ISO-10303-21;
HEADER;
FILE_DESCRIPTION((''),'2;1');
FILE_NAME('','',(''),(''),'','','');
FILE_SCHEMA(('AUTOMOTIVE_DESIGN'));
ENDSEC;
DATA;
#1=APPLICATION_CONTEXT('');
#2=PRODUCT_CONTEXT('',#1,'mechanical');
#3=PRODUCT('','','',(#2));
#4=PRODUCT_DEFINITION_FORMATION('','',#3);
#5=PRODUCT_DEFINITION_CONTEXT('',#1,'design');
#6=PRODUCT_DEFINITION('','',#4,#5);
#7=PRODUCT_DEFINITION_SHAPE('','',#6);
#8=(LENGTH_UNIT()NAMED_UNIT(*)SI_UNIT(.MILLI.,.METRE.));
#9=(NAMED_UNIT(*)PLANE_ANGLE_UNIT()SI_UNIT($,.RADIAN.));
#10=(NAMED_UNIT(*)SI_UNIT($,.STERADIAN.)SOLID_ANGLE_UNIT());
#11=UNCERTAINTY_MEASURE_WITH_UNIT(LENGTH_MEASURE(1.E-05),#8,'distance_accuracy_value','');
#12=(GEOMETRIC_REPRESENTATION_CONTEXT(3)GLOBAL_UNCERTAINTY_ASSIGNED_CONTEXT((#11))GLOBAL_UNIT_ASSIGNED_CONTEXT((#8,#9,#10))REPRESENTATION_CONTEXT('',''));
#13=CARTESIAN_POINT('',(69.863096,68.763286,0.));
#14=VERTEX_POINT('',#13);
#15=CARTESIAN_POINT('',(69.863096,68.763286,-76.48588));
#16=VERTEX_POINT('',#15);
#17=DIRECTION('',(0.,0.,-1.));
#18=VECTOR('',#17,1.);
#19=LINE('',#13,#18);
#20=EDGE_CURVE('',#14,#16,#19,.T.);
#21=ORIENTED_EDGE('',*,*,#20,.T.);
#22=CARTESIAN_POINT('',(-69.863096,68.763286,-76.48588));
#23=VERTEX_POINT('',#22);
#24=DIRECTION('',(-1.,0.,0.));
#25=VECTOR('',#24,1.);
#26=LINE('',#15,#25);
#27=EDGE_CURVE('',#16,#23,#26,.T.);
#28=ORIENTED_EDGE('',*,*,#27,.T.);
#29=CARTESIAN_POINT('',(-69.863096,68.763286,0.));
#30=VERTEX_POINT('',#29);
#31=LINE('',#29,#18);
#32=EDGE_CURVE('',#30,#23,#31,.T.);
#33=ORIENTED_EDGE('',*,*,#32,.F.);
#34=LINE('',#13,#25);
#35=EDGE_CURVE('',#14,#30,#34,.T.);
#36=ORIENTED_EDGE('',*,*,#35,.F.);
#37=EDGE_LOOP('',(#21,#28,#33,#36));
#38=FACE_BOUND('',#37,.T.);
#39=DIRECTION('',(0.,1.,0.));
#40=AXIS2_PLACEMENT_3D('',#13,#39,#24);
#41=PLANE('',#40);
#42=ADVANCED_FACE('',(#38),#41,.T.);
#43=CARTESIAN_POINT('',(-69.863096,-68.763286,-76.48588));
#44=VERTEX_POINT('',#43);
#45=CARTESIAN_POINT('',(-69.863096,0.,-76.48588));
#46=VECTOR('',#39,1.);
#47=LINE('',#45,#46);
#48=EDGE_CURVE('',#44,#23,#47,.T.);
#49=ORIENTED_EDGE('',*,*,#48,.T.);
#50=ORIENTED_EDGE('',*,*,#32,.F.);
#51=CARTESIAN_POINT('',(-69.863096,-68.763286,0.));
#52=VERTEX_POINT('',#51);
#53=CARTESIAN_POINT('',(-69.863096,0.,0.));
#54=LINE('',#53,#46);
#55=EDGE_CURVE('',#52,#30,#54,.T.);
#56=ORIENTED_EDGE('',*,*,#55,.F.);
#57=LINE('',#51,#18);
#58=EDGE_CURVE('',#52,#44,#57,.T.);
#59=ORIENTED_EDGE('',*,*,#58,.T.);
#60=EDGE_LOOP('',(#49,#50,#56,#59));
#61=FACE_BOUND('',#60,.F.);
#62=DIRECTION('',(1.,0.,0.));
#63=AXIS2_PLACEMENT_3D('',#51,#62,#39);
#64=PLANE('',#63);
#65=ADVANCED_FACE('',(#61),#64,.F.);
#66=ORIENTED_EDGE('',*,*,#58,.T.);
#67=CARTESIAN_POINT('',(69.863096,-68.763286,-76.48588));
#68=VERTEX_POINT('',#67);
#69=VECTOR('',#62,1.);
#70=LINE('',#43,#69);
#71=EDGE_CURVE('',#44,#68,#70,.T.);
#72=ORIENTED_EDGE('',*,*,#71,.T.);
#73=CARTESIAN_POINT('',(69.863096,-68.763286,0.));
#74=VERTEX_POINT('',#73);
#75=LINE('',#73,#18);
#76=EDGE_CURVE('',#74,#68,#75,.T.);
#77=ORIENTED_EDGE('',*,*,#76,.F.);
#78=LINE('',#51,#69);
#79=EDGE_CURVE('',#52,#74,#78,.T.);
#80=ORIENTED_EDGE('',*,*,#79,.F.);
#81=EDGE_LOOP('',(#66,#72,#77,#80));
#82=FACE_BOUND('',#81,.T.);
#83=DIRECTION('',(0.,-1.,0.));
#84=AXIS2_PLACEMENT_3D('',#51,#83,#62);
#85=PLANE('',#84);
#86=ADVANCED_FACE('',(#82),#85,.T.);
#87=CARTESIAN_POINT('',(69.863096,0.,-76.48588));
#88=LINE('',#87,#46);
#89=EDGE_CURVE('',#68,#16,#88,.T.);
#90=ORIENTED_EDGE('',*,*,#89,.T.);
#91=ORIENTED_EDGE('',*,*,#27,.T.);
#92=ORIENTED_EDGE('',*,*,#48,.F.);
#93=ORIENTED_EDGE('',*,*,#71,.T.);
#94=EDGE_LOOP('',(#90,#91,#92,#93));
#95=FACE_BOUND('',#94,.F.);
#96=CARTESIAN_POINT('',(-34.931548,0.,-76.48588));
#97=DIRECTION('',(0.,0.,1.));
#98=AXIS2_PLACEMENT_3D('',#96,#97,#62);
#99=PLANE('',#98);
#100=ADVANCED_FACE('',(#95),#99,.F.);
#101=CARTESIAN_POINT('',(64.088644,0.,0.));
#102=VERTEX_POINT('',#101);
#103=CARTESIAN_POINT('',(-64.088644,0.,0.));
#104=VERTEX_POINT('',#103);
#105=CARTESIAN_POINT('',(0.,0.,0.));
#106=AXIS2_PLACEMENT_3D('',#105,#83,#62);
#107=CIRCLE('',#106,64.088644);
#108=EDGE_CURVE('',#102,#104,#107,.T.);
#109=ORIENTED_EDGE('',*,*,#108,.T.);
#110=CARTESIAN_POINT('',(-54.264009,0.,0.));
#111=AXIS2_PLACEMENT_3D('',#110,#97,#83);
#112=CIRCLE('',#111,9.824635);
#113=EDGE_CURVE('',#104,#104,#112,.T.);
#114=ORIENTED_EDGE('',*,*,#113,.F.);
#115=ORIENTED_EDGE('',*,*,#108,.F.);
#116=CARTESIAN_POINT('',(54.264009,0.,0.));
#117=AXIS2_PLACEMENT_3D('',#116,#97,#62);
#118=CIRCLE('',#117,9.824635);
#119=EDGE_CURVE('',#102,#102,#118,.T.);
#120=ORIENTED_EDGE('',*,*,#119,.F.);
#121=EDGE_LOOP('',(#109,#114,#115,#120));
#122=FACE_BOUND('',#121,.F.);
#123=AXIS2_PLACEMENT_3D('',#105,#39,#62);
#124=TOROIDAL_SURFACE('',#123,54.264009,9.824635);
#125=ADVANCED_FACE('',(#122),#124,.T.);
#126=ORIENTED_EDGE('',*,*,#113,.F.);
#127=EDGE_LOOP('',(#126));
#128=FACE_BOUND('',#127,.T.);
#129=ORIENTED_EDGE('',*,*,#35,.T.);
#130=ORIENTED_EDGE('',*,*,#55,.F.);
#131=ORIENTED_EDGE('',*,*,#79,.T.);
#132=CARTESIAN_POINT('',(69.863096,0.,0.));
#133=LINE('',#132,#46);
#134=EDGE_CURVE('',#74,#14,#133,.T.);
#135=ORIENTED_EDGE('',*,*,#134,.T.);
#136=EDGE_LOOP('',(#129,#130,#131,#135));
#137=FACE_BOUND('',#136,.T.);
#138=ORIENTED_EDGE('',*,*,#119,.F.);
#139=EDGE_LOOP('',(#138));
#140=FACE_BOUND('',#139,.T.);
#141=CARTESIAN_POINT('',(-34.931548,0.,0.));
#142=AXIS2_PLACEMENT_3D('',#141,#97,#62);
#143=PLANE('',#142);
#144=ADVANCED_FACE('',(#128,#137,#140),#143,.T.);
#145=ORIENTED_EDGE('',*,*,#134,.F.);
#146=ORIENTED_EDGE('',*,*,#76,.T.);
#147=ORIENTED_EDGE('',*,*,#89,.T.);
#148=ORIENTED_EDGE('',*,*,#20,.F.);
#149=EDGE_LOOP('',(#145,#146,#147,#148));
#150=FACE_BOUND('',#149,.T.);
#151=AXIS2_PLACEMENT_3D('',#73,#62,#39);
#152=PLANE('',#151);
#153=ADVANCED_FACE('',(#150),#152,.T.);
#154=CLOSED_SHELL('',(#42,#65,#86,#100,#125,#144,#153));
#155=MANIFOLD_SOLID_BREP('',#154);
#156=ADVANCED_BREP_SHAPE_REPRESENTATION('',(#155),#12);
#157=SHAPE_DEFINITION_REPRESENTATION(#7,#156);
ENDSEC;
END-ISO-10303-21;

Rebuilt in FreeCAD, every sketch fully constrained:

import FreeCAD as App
import Part
import Sketcher

V = App.Vector
Q = App.Units.Quantity


def add_polygon(sketch, points):
    """Adds a closed chain of lines whose ends are joined by coincident constraints."""
    first, n = sketch.GeometryCount, len(points)
    for a, b in zip(points, points[1:] + points[:1]):
        sketch.addGeometry(Part.LineSegment(App.Vector(*a, 0), App.Vector(*b, 0)), False)
    for i in range(n):
        sketch.addConstraint(Sketcher.Constraint("Coincident", first + i, 2, first + (i + 1) % n, 1))

doc = App.newDocument("Part")
params = doc.addObject("Spreadsheet::Sheet", "Params")
for row, (alias, value) in enumerate([
    ("revolution_angle", "180.824996 deg"),
    ("pad1_length", "76.48588 mm"),
], start=1):
    params.set(f"A{row}", alias)
    params.set(f"B{row}", "=" + value)
    params.setAlias(f"B{row}", alias)

body = doc.addObject("PartDesign::Body", "Body")

# Sketch on XY plane
sketch1 = body.newObject("Sketcher::SketchObject", "Sketch")
sketch1.AttachmentSupport = (doc.getObject("XY_Plane"), [""])
sketch1.MapMode = "FlatFace"
sketch1.addGeometry(Part.Circle(V(54, 0, 0), V(0, 0, 1), 10), False)
sketch1.addConstraint([
    Sketcher.Constraint("PointOnObject", 0, 3, -1),
    Sketcher.Constraint("Diameter", 0, Q("19.64927 mm")),
    Sketcher.Constraint("DistanceX", -1, 1, 0, 3, Q("54.264009 mm")),
])
revolution = body.newObject("PartDesign::Revolution", "Revolution")
revolution.Profile = sketch1
revolution.ReferenceAxis = (sketch1, ["V_Axis"])
revolution.setExpression("Angle", "Params.revolution_angle")
revolution.Reversed = True

# Sketch on XY plane
sketch2 = body.newObject("Sketcher::SketchObject", "Sketch001")
sketch2.AttachmentSupport = (doc.getObject("XY_Plane"), [""])
sketch2.MapMode = "FlatFace"
add_polygon(sketch2, [(-70, 69), (-70, -69), (70, -69), (70, 69)])  # lines 0-3
sketch2.addConstraint([
    Sketcher.Constraint("Vertical", 0),
    Sketcher.Constraint("Horizontal", 1),
    Sketcher.Constraint("Vertical", 2),
    Sketcher.Constraint("Horizontal", 3),
    Sketcher.Constraint("Symmetric", 0, 2, 2, 2, -1, 1),
    Sketcher.Constraint("DistanceX", 1, 1, 1, 2, Q("139.726192 mm")),
    Sketcher.Constraint("DistanceY", 0, 2, 0, 1, Q("137.526572 mm")),
])
pad1 = body.newObject("PartDesign::Pad", "Pad")
pad1.Profile = sketch2
pad1.setExpression("Length", "Params.pad1_length")
pad1.Reversed = True

doc.recompute()
